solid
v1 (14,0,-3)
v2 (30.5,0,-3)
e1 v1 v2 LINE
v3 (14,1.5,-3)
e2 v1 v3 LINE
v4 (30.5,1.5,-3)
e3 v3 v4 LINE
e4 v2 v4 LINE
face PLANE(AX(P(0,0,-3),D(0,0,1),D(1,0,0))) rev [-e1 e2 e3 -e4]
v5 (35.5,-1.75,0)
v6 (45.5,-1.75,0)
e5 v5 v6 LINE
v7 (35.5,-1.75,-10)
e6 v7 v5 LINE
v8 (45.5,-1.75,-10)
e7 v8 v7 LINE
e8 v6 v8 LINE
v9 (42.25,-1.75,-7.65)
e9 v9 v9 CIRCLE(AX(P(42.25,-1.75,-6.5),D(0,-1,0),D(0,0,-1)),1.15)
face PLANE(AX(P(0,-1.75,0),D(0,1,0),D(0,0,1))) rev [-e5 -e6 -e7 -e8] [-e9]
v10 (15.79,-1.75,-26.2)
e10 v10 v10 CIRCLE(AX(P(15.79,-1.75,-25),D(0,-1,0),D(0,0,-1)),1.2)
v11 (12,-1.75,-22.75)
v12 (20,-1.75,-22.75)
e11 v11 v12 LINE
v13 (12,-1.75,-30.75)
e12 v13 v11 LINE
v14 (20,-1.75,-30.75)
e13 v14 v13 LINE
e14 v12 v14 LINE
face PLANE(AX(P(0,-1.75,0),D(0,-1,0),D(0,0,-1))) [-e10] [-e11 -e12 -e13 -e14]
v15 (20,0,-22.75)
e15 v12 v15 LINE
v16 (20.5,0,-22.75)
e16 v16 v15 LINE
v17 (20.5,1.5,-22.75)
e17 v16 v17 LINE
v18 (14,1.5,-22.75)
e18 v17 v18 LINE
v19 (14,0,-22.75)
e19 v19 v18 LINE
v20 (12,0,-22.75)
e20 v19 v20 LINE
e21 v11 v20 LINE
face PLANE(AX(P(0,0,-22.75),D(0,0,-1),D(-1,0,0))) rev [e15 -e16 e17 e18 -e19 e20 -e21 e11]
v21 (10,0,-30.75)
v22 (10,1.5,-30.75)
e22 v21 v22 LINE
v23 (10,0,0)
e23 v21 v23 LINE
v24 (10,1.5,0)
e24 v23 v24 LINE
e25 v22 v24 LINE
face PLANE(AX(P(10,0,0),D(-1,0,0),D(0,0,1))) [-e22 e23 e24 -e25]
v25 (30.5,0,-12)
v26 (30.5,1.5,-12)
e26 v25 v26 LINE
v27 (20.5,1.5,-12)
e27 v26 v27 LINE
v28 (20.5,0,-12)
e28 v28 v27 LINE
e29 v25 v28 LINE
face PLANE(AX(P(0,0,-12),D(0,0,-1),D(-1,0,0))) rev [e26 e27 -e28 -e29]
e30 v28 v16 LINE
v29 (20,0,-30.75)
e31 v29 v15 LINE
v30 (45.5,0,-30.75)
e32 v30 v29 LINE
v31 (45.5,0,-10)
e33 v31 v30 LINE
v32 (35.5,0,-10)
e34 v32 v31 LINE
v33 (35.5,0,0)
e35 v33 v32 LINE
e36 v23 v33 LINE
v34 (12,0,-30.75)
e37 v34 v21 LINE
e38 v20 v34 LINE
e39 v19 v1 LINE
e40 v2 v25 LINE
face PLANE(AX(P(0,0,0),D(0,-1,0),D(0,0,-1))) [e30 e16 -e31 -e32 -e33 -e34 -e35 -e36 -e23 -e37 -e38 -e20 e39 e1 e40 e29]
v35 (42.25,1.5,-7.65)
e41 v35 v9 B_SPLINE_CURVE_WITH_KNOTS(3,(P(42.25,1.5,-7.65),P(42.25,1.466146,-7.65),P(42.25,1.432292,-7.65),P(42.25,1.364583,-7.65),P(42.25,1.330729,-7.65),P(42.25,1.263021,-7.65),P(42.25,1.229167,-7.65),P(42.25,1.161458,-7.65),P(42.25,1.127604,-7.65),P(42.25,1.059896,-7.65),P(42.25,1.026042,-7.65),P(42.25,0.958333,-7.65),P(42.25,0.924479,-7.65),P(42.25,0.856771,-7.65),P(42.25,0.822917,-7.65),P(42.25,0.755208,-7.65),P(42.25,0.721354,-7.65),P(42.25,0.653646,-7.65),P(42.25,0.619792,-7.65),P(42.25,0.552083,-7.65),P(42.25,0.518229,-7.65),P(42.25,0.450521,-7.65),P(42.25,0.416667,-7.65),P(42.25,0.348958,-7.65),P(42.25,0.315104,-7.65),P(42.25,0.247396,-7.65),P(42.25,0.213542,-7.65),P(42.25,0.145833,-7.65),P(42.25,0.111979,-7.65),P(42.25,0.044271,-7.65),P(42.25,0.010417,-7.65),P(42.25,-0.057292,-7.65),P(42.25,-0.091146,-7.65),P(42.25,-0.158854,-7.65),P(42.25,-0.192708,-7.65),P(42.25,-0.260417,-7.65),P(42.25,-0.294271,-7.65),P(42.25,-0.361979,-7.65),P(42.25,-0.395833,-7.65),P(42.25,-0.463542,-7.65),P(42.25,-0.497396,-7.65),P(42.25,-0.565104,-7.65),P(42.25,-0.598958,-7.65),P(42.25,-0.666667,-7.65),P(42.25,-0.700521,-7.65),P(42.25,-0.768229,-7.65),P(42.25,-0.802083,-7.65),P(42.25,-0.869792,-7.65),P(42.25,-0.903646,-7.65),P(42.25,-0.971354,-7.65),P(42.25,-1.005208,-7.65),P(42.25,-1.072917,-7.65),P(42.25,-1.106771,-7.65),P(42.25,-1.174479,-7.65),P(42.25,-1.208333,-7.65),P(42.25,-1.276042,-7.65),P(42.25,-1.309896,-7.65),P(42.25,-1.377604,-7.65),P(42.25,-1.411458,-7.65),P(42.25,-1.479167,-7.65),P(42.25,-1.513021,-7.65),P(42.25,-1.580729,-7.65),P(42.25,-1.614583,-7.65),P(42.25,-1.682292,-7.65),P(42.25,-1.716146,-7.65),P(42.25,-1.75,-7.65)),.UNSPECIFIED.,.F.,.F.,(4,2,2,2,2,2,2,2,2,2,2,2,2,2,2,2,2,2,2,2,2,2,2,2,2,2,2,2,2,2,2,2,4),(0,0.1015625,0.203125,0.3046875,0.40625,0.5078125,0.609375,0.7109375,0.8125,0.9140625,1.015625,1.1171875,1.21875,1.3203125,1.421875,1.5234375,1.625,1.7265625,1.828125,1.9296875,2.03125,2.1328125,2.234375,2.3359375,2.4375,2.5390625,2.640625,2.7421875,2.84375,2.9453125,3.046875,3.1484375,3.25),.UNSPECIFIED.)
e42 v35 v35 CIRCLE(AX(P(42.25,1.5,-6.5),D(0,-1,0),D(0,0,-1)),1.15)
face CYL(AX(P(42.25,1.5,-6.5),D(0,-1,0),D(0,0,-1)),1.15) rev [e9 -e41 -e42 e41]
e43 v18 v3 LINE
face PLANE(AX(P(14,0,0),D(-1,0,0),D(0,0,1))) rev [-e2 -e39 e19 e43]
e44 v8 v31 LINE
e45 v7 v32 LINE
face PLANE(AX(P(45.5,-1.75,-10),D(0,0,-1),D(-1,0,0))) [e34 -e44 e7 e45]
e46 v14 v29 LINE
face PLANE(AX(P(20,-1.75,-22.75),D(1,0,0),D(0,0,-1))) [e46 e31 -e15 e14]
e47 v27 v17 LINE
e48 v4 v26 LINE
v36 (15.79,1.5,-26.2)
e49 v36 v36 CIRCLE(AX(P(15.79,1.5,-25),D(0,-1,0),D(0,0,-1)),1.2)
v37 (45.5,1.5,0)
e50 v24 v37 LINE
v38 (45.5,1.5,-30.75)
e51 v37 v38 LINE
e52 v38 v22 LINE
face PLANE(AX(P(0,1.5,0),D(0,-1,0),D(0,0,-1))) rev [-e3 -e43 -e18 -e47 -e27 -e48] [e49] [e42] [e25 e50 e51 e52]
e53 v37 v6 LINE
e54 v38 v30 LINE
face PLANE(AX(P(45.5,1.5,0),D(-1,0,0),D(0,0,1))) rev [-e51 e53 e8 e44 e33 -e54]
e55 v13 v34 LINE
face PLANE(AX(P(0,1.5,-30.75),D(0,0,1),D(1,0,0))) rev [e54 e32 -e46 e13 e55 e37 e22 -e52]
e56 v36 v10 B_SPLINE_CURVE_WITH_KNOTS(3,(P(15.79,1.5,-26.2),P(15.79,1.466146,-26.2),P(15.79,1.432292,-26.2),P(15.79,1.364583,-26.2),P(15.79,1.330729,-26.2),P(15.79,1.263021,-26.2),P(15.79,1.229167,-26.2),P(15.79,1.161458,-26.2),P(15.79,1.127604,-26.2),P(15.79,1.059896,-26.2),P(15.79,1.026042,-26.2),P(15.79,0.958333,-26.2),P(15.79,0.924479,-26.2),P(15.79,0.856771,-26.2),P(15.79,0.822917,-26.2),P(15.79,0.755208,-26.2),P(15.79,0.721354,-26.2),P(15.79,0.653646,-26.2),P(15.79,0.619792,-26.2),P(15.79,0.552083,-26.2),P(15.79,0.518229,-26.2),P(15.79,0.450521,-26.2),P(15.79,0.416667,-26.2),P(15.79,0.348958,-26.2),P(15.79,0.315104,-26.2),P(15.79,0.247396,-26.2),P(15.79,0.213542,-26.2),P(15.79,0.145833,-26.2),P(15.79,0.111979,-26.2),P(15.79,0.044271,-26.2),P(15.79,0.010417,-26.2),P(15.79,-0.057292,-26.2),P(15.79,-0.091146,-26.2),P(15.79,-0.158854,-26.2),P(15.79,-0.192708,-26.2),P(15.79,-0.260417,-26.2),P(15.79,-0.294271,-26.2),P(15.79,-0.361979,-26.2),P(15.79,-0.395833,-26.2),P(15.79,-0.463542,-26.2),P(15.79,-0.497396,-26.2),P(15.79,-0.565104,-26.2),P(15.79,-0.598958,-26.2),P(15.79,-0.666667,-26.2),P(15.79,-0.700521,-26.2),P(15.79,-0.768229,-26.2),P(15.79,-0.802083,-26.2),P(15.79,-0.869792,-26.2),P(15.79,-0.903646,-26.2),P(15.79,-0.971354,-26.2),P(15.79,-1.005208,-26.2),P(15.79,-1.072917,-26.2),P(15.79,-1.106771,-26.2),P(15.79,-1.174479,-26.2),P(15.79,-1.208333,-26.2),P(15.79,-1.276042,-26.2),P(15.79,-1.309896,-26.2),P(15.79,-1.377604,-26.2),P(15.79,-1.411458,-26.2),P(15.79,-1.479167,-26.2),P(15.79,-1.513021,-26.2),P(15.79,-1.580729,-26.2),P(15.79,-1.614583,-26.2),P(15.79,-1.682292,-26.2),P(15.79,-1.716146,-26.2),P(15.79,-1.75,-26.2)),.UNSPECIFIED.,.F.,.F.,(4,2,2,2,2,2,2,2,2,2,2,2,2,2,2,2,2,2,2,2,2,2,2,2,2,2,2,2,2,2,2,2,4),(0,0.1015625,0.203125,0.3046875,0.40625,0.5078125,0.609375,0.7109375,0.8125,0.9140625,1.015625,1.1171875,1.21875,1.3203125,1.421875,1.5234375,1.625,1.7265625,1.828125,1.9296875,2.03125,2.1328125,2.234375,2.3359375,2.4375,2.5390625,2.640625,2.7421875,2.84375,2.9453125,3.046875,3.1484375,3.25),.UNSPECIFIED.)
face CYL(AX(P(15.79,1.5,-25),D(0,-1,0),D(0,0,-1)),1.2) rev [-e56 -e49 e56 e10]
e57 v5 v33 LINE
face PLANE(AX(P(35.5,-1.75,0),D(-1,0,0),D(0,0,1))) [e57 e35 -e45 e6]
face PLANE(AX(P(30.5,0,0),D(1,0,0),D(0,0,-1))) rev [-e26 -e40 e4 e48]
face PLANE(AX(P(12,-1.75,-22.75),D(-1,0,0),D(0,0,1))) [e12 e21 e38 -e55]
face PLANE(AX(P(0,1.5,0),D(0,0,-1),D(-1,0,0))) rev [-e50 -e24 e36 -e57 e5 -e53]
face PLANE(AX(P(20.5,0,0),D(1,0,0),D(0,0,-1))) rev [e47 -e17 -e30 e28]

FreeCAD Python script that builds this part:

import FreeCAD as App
import Part
import Sketcher

V = App.Vector
Q = App.Units.Quantity

doc = App.newDocument("Part")
body = doc.addObject("PartDesign::Body", "Body")

# Sketch on XZ plane
sketch1 = doc.addObject("Sketcher::SketchObject", "Sketch")
body.addObject(sketch1)
sketch1.AttachmentSupport = (doc.XZ_Plane, [""])
sketch1.MapMode = "FlatFace"
sketch1.addGeometry([
    Part.LineSegment(V(0, -31, 0), V(0, 0, 0)),
    Part.LineSegment(V(0, 0, 0), V(46, 0, 0)),
    Part.LineSegment(V(46, 0, 0), V(46, -31, 0)),
    Part.LineSegment(V(46, -31, 0), V(0, -31, 0)),
], False)
sketch1.addConstraint([
    Sketcher.Constraint("Coincident", 0, 2, 1, 1),
    Sketcher.Constraint("Coincident", 1, 2, 2, 1),
    Sketcher.Constraint("Coincident", 2, 2, 3, 1),
    Sketcher.Constraint("Coincident", 3, 2, 0, 1),
    Sketcher.Constraint("Vertical", 0),
    Sketcher.Constraint("Horizontal", 1),
    Sketcher.Constraint("Vertical", 2),
    Sketcher.Constraint("Horizontal", 3),
    Sketcher.Constraint("Coincident", 0, 2, -1, 1),
    Sketcher.Constraint("DistanceX", 1, 1, 1, 2, Q("45.5 mm")),
    Sketcher.Constraint("DistanceY", 0, 1, 0, 2, Q("30.75 mm")),
])
pad1 = doc.addObject("PartDesign::Pad", "Pad")
body.addObject(pad1)
pad1.Profile = sketch1
pad1.Length = 1.5
pad1.Reversed = True

# Sketch on XZ plane
sketch2 = doc.addObject("Sketcher::SketchObject", "Sketch001")
body.addObject(sketch2)
sketch2.AttachmentSupport = (doc.XZ_Plane, [""])
sketch2.MapMode = "FlatFace"
sketch2.AttachmentOffset = App.Placement(V(0, 0, -1.5), App.Rotation())
sketch2.addGeometry([
    Part.LineSegment(V(0, 0, 0), V(10, 0, 0)),  # 0
    Part.LineSegment(V(10, 0, 0), V(10, -31, 0)),  # 1
    Part.LineSegment(V(10, -31, 0), V(0, -31, 0)),  # 2
    Part.LineSegment(V(0, -31, 0), V(0, 0, 0)),  # 3
    Part.LineSegment(V(14, -3, 0), V(30, -3, 0)),  # 4
    Part.LineSegment(V(30, -3, 0), V(30, -12, 0)),  # 5
    Part.LineSegment(V(30, -12, 0), V(20, -12, 0)),  # 6
    Part.LineSegment(V(20, -12, 0), V(20, -23, 0)),  # 7
    Part.LineSegment(V(20, -23, 0), V(14, -23, 0)),  # 8
    Part.LineSegment(V(14, -23, 0), V(14, -3, 0)),  # 9
], False)
sketch2.addConstraint([
    Sketcher.Constraint("Coincident", 0, 2, 1, 1),
    Sketcher.Constraint("Coincident", 1, 2, 2, 1),
    Sketcher.Constraint("Coincident", 2, 2, 3, 1),
    Sketcher.Constraint("Coincident", 3, 2, 0, 1),
    Sketcher.Constraint("Coincident", 4, 2, 5, 1),
    Sketcher.Constraint("Coincident", 5, 2, 6, 1),
    Sketcher.Constraint("Coincident", 6, 2, 7, 1),
    Sketcher.Constraint("Coincident", 7, 2, 8, 1),
    Sketcher.Constraint("Coincident", 8, 2, 9, 1),
    Sketcher.Constraint("Coincident", 9, 2, 4, 1),
    Sketcher.Constraint("Horizontal", 0),
    Sketcher.Constraint("Vertical", 1),
    Sketcher.Constraint("Horizontal", 2),
    Sketcher.Constraint("Vertical", 3),
    Sketcher.Constraint("Horizontal", 4),
    Sketcher.Constraint("Vertical", 5),
    Sketcher.Constraint("Horizontal", 6),
    Sketcher.Constraint("Vertical", 7),
    Sketcher.Constraint("Horizontal", 8),
    Sketcher.Constraint("Vertical", 9),
    Sketcher.Constraint("Coincident", 3, 2, -1, 1),
    Sketcher.Constraint("Equal", 2, 6),
    Sketcher.Constraint("DistanceX", 0, 1, 0, 2, Q("10 mm")),
    Sketcher.Constraint("DistanceY", 5, 2, 5, 1, Q("9 mm")),
    Sketcher.Constraint("DistanceX", 4, 1, 4, 2, Q("16.5 mm")),
    Sketcher.Constraint("DistanceY", 4, 2, -1, 1, Q("3 mm")),
    Sketcher.Constraint("DistanceX", -1, 1, 8, 2, Q("14 mm")),
    Sketcher.Constraint("DistanceY", 1, 2, 7, 2, Q("8 mm")),
    Sketcher.Constraint("DistanceY", 1, 2, 1, 1, Q("30.75 mm")),
])
pocket1 = doc.addObject("PartDesign::Pocket", "Pocket")
body.addObject(pocket1)
pocket1.Profile = sketch2
pocket1.Type = "ThroughAll"
pocket1.Reversed = True

# Sketch on XZ plane
sketch3 = doc.addObject("Sketcher::SketchObject", "Sketch002")
body.addObject(sketch3)
sketch3.AttachmentSupport = (doc.XZ_Plane, [""])
sketch3.MapMode = "FlatFace"
sketch3.AttachmentOffset = App.Placement(V(0, 0, -1.5), App.Rotation())
sketch3.addGeometry([
    Part.LineSegment(V(36, -10, 0), V(36, 0, 0)),  # 0
    Part.LineSegment(V(36, 0, 0), V(46, 0, 0)),  # 1
    Part.LineSegment(V(46, 0, 0), V(46, -10, 0)),  # 2
    Part.LineSegment(V(46, -10, 0), V(36, -10, 0)),  # 3
    Part.LineSegment(V(12, -31, 0), V(12, -23, 0)),  # 4
    Part.LineSegment(V(12, -23, 0), V(20, -23, 0)),  # 5
    Part.LineSegment(V(20, -23, 0), V(20, -31, 0)),  # 6
    Part.LineSegment(V(20, -31, 0), V(12, -31, 0)),  # 7
], False)
sketch3.addConstraint([
    Sketcher.Constraint("Coincident", 0, 2, 1, 1),
    Sketcher.Constraint("Coincident", 1, 2, 2, 1),
    Sketcher.Constraint("Coincident", 2, 2, 3, 1),
    Sketcher.Constraint("Coincident", 3, 2, 0, 1),
    Sketcher.Constraint("Coincident", 4, 2, 5, 1),
    Sketcher.Constraint("Coincident", 5, 2, 6, 1),
    Sketcher.Constraint("Coincident", 6, 2, 7, 1),
    Sketcher.Constraint("Coincident", 7, 2, 4, 1),
    Sketcher.Constraint("Vertical", 0),
    Sketcher.Constraint("Horizontal", 1),
    Sketcher.Constraint("Vertical", 2),
    Sketcher.Constraint("Horizontal", 3),
    Sketcher.Constraint("Vertical", 4),
    Sketcher.Constraint("Horizontal", 5),
    Sketcher.Constraint("Vertical", 6),
    Sketcher.Constraint("Horizontal", 7),
    Sketcher.Constraint("PointOnObject", 0, 2, -1),
    Sketcher.Constraint("Equal", 3, 0),
    Sketcher.Constraint("Equal", 7, 4),
    Sketcher.Constraint("DistanceX", 1, 1, 1, 2, Q("10 mm")),
    Sketcher.Constraint("DistanceX", 5, 1, 5, 2, Q("8 mm")),
    Sketcher.Constraint("DistanceX", -1, 1, 4, 2, Q("12 mm")),
    Sketcher.Constraint("DistanceX", -1, 1, 0, 2, Q("35.5 mm")),
    Sketcher.Constraint("DistanceY", 4, 2, -1, 1, Q("22.75 mm")),
])
pad2 = doc.addObject("PartDesign::Pad", "Pad001")
body.addObject(pad2)
pad2.Profile = sketch3
pad2.Length = 3.25

# Sketch on XZ plane
sketch4 = doc.addObject("Sketcher::SketchObject", "Sketch003")
body.addObject(sketch4)
sketch4.AttachmentSupport = (doc.XZ_Plane, [""])
sketch4.MapMode = "FlatFace"
sketch4.AttachmentOffset = App.Placement(V(0, 0, 1.75), App.Rotation())
sketch4.addGeometry([
    Part.Circle(V(42.2, -6.5, 0), V(0, 0, 1), 1.1),
    Part.Circle(V(15.8, -25, 0), V(0, 0, 1), 1.2),
], False)
sketch4.addConstraint([
    Sketcher.Constraint("Diameter", 0, Q("2.3 mm")),
    Sketcher.Constraint("Diameter", 1, Q("2.4 mm")),
    Sketcher.Constraint("DistanceY", 1, 3, -1, 1, Q("25 mm")),
    Sketcher.Constraint("DistanceY", 0, 3, -1, 1, Q("6.5 mm")),
    Sketcher.Constraint("DistanceX", -1, 1, 0, 3, Q("42.25 mm")),
    Sketcher.Constraint("DistanceX", -1, 1, 1, 3, Q("15.79 mm")),
])
pocket2 = doc.addObject("PartDesign::Pocket", "Pocket001")
body.addObject(pocket2)
pocket2.Profile = sketch4
pocket2.Type = "ThroughAll"

doc.recompute()
